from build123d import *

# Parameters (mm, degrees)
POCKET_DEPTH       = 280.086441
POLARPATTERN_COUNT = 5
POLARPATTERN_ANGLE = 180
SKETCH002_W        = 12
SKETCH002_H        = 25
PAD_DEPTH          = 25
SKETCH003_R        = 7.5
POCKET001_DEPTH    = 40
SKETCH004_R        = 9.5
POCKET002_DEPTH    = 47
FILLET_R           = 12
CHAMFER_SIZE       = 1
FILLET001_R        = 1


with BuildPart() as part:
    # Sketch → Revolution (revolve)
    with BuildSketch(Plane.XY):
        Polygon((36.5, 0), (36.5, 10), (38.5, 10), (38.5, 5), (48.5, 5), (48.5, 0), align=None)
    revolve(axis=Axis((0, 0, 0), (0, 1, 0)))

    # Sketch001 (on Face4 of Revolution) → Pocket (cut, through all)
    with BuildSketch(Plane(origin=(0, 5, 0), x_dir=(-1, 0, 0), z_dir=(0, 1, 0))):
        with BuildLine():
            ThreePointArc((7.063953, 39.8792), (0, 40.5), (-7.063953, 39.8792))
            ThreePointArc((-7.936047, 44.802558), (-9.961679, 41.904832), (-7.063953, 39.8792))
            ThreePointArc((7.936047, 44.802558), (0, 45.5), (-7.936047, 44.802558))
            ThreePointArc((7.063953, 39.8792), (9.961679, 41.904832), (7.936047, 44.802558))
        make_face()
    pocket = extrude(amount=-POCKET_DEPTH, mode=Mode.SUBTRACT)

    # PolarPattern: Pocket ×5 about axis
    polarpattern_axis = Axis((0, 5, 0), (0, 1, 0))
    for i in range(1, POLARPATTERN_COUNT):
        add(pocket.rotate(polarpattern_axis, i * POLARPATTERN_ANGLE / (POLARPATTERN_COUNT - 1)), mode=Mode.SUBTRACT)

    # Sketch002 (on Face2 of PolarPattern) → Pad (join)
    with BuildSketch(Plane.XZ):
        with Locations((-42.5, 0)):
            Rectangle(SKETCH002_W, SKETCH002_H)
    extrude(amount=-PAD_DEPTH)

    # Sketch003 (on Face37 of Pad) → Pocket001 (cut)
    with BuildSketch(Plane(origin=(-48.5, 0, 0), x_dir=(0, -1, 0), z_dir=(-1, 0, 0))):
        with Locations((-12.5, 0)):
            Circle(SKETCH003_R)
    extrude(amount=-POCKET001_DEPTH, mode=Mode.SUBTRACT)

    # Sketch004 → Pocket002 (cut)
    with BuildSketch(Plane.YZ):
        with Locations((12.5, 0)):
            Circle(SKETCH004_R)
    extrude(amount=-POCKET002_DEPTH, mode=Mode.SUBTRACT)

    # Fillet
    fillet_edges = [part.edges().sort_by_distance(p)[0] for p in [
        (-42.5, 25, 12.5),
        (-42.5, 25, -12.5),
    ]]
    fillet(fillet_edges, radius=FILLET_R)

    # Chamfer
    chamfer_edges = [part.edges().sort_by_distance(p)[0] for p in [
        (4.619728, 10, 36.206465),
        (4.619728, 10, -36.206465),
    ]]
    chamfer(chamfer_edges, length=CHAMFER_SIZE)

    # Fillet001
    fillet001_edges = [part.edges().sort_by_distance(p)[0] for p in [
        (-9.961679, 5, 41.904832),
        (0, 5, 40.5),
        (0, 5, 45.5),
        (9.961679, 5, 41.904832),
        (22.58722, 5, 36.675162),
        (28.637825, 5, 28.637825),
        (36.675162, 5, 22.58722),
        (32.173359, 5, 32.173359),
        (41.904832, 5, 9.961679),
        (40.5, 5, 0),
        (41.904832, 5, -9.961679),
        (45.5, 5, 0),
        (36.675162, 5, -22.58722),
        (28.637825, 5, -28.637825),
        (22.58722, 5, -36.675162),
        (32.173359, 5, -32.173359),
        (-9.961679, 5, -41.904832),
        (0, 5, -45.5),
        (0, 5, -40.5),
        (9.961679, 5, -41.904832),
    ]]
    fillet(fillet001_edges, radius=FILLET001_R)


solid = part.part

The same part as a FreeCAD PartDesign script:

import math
import FreeCAD as App
import Part
import Sketcher
from FreeCAD import Vector
Q = App.Units.Quantity


def edges_at(feature, points):
    """Names of the edges that pass closest to the given points."""
    edges = feature.Shape.Edges
    near = lambda p: min(range(len(edges)), key=lambda i: edges[i].distToShape(Part.Vertex(*p))[0])
    return sorted({f"Edge{near(p) + 1}" for p in points})


def add_polygon(sketch, points):
    """Adds a closed chain of lines whose ends are joined by coincident constraints."""
    first, n = sketch.GeometryCount, len(points)
    for a, b in zip(points, points[1:] + points[:1]):
        sketch.addGeometry(Part.LineSegment(App.Vector(*a, 0), App.Vector(*b, 0)), False)
    for i in range(n):
        sketch.addConstraint(Sketcher.Constraint("Coincident", first + i, 2, first + (i + 1) % n, 1))

doc = App.newDocument("Part")
params = doc.addObject("Spreadsheet::Sheet", "Params")
for row, (alias, value) in enumerate([
    ("sketch1_width", "12 mm"),
    ("sketch1_width2", "10 mm"),
    ("revolution_angle", "360 deg"),
    ("sketch2_radius", "2.5 mm"),
    ("sketch3_width", "12 mm"),
    ("sketch3_height", "25 mm"),
    ("pad1_length", "25 mm"),
    ("sketch4_diameter", "15 mm"),
    ("pocket2_length", "40 mm"),
    ("sketch5_diameter", "19 mm"),
    ("pocket3_length", "47 mm"),
    ("fillet_radius", "12 mm"),
    ("chamfer_size", "1 mm"),
    ("fillet2_radius", "1 mm"),
], start=1):
    params.set(f"A{row}", alias)
    params.set(f"B{row}", "=" + value)
    params.setAlias(f"B{row}", alias)

body = doc.addObject("PartDesign::Body", "Body")

# Sketch on XY plane
sketch1 = body.newObject("Sketcher::SketchObject", "Sketch")
sketch1.AttachmentSupport = (doc.getObject("XY_Plane"), [""])
sketch1.MapMode = "FlatFace"
add_polygon(sketch1, [(36.5, 10), (36.5, 0), (48.5, 0), (48.5, 5), (38.5, 5), (38.5, 10)])  # lines 0-5
sketch1.addConstraint([
    Sketcher.Constraint("Vertical", 0),
    Sketcher.Constraint("Horizontal", 1),
    Sketcher.Constraint("Vertical", 2),
    Sketcher.Constraint("Horizontal", 3),
    Sketcher.Constraint("Vertical", 4),
    Sketcher.Constraint("Horizontal", 5),
    Sketcher.Constraint("PointOnObject", 0, 2, -1),
    Sketcher.Constraint("Equal", 3, 0),
    Sketcher.Constraint("Equal", 2, 4),
    Sketcher.Constraint("DistanceX", 1, 1, 1, 2, Q("12 mm")),
    Sketcher.Constraint("DistanceX", 3, 2, 3, 1, Q("10 mm")),
    Sketcher.Constraint("DistanceX", -1, 1, 0, 2, Q("36.5 mm")),
])
sketch1.setExpression("Constraints[15]", "Params.sketch1_width")
sketch1.setExpression("Constraints[16]", "Params.sketch1_width2")
revolution = body.newObject("PartDesign::Revolution", "Revolution")
revolution.Profile = sketch1
revolution.ReferenceAxis = (sketch1, ["V_Axis"])
revolution.setExpression("Angle", "Params.revolution_angle")

# Sketch on XZ plane
sketch2 = body.newObject("Sketcher::SketchObject", "Sketch001")
sketch2.AttachmentSupport = (doc.getObject("XZ_Plane"), [""])
sketch2.MapMode = "FlatFace"
sketch2.AttachmentOffset = App.Placement(Vector(0, 0, -5), App.Rotation())
sketch2.addGeometry([
    Part.ArcOfCircle(Part.Circle(Vector(0, 0, 0), Vector(0, 0, 1), 40.5), math.radians(80), math.radians(100)),
    Part.ArcOfCircle(Part.Circle(Vector(-7.5, 42.3, 0), Vector(0, 0, 1), 2.5), math.radians(100), math.radians(280)),
    Part.ArcOfCircle(Part.Circle(Vector(0, 0, 0), Vector(0, 0, 1), 45.5), math.radians(80), math.radians(100)),
    Part.ArcOfCircle(Part.Circle(Vector(7.5, 42.3, 0), Vector(0, 0, 1), 2.5), math.radians(-100), math.radians(80)),
], False)
sketch2.addConstraint([
    Sketcher.Constraint("Tangent", 0, 2, 1, 2),
    Sketcher.Constraint("Tangent", 1, 1, 2, 2),
    Sketcher.Constraint("Tangent", 2, 1, 3, 2),
    Sketcher.Constraint("Tangent", 3, 1, 0, 1),
    Sketcher.Constraint("Equal", 1, 3),
    Sketcher.Constraint("Symmetric", 1, 3, 3, 3, -2),
    Sketcher.Constraint("Radius", 1, Q("2.5 mm")),
    Sketcher.Constraint("DistanceX", 1, 3, 3, 3, Q("15 mm")),
    Sketcher.Constraint("DistanceX", 1, 1, 3, 1, Q("15 mm")),
    Sketcher.Constraint("Radius", 0, Q("40.50002 mm")),
    Sketcher.Constraint("DistanceY", -1, 1, 0, 2, Q("39.8792 mm")),
])
sketch2.setExpression("Constraints[6]", "Params.sketch2_radius")
pocket1 = body.newObject("PartDesign::Pocket", "Pocket")
pocket1.Profile = sketch2
pocket1.Type = "ThroughAll"
pocket1.Reversed = True
doc.recompute()

polarpattern = body.newObject("PartDesign::PolarPattern", "PolarPattern")
polarpattern.Originals = [pocket1]
polarpattern.Axis = (doc.getObject("Y_Axis"), [""])
polarpattern.Angle = 180
polarpattern.Occurrences = 5
body.Tip = polarpattern

# Sketch on XZ plane
sketch3 = body.newObject("Sketcher::SketchObject", "Sketch002")
sketch3.AttachmentSupport = (doc.getObject("XZ_Plane"), [""])
sketch3.MapMode = "FlatFace"
add_polygon(sketch3, [(-48, 12), (-48, -12), (-36, -12), (-36, 12)])  # lines 0-3
sketch3.addConstraint([
    Sketcher.Constraint("Vertical", 0),
    Sketcher.Constraint("Horizontal", 1),
    Sketcher.Constraint("Vertical", 2),
    Sketcher.Constraint("Horizontal", 3),
    Sketcher.Constraint("DistanceX", 1, 1, 1, 2, Q("12 mm")),
    Sketcher.Constraint("DistanceY", 0, 2, 0, 1, Q("25 mm")),
    Sketcher.Constraint("DistanceX", 0, 2, -1, 1, Q("48.5 mm")),
    Sketcher.Constraint("DistanceY", 0, 2, -1, 1, Q("12.5 mm")),
])
sketch3.setExpression("Constraints[8]", "Params.sketch3_width")
sketch3.setExpression("Constraints[9]", "Params.sketch3_height")
pad1 = body.newObject("PartDesign::Pad", "Pad")
pad1.Profile = sketch3
pad1.setExpression("Length", "Params.pad1_length")
pad1.Reversed = True

# Sketch on YZ plane
sketch4 = body.newObject("Sketcher::SketchObject", "Sketch003")
sketch4.AttachmentSupport = (doc.getObject("YZ_Plane"), [""])
sketch4.MapMode = "FlatFace"
sketch4.AttachmentOffset = App.Placement(Vector(0, 0, -48.5), App.Rotation())
sketch4.addGeometry(Part.Circle(Vector(12, 0, 0), Vector(0, 0, 1), 8), False)
sketch4.addConstraint([
    Sketcher.Constraint("PointOnObject", 0, 3, -1),
    Sketcher.Constraint("Diameter", 0, Q("15 mm")),
    Sketcher.Constraint("DistanceX", -1, 1, 0, 3, Q("12.5 mm")),
])
sketch4.setExpression("Constraints[1]", "Params.sketch4_diameter")
pocket2 = body.newObject("PartDesign::Pocket", "Pocket001")
pocket2.Profile = sketch4
pocket2.setExpression("Length", "Params.pocket2_length")
pocket2.Reversed = True

# Sketch on YZ plane
sketch5 = body.newObject("Sketcher::SketchObject", "Sketch004")
sketch5.AttachmentSupport = (doc.getObject("YZ_Plane"), [""])
sketch5.MapMode = "FlatFace"
sketch5.addGeometry(Part.Circle(Vector(12, 0, 0), Vector(0, 0, 1), 10), False)
sketch5.addConstraint([
    Sketcher.Constraint("PointOnObject", 0, 3, -1),
    Sketcher.Constraint("Diameter", 0, Q("19 mm")),
    Sketcher.Constraint("DistanceX", -1, 1, 0, 3, Q("12.5 mm")),
])
sketch5.setExpression("Constraints[1]", "Params.sketch5_diameter")
pocket3 = body.newObject("PartDesign::Pocket", "Pocket002")
pocket3.Profile = sketch5
pocket3.setExpression("Length", "Params.pocket3_length")
doc.recompute()

fillet = body.newObject("PartDesign::Fillet", "Fillet")
fillet.Base = (pocket3, edges_at(pocket3, [(-42.5, 25, 12.5), (-42.5, 25, -12.5)]))
fillet.setExpression("Radius", "Params.fillet_radius")
doc.recompute()

chamfer = body.newObject("PartDesign::Chamfer", "Chamfer")
chamfer.Base = (fillet, edges_at(fillet, [(4.62, 10, 36.206), (4.62, 10, -36.206)]))
chamfer.setExpression("Size", "Params.chamfer_size")
doc.recompute()

fillet2 = body.newObject("PartDesign::Fillet", "Fillet001")
fillet2.Base = (chamfer, edges_at(chamfer, [
    (-9.962, 5, 41.905),
    (0, 5, 40.5),
    (0, 5, 45.5),
    (9.962, 5, 41.905),
    (22.587, 5, 36.675),
    (28.638, 5, 28.638),
    (36.675, 5, 22.587),
    (32.173, 5, 32.173),
    (41.905, 5, 9.962),
    (40.5, 5, 0),
    (41.905, 5, -9.962),
    (45.5, 5, 0),
    (36.675, 5, -22.587),
    (28.638, 5, -28.638),
    (22.587, 5, -36.675),
    (32.173, 5, -32.173),
    (-9.962, 5, -41.905),
    (0, 5, -45.5),
    (0, 5, -40.5),
    (9.962, 5, -41.905),
]))
fillet2.setExpression("Radius", "Params.fillet2_radius")

doc.recompute()
